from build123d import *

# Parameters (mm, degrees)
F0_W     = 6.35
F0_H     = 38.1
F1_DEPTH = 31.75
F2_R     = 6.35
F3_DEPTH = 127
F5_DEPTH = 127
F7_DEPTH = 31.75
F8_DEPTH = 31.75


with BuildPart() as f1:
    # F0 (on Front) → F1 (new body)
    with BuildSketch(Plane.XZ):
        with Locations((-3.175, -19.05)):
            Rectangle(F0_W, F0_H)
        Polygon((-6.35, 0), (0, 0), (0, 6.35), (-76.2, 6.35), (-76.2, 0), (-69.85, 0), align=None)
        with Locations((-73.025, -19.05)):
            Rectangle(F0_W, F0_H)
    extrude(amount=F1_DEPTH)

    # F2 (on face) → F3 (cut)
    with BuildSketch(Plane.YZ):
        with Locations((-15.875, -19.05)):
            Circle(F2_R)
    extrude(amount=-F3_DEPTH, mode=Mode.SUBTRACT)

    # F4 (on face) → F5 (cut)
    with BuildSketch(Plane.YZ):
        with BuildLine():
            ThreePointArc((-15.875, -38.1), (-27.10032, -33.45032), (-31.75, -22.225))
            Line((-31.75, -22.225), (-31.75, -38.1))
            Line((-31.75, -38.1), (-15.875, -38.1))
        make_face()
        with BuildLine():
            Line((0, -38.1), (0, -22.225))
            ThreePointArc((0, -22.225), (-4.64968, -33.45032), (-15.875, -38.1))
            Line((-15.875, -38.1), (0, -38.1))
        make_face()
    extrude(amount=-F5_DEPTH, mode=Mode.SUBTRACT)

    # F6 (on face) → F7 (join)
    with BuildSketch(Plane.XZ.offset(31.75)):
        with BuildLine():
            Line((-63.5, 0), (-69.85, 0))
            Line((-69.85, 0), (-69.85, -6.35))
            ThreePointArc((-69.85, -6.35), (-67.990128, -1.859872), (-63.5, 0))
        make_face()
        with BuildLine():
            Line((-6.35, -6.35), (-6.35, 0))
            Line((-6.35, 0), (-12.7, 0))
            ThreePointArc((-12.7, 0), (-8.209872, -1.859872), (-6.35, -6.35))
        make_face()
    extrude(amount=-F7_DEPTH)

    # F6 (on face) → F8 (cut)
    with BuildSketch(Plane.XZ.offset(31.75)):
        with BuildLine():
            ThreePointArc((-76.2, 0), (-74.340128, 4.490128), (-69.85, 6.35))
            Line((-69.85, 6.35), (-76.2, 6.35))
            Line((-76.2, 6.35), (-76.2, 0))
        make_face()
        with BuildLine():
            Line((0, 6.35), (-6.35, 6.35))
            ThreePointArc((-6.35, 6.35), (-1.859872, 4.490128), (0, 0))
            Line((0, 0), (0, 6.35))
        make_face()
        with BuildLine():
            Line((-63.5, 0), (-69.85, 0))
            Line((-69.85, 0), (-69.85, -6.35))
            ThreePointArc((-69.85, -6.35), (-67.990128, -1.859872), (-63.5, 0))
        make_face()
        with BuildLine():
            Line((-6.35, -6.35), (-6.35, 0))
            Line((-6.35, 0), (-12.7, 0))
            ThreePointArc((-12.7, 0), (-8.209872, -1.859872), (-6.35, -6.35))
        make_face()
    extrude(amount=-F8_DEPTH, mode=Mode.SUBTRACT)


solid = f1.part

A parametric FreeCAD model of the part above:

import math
import FreeCAD as App
import Part
import Sketcher
from FreeCAD import Vector
Q = App.Units.Quantity


def add_polygon(sketch, points):
    """Adds a closed chain of lines whose ends are joined by coincident constraints."""
    first, n = sketch.GeometryCount, len(points)
    for a, b in zip(points, points[1:] + points[:1]):
        sketch.addGeometry(Part.LineSegment(App.Vector(*a, 0), App.Vector(*b, 0)), False)
    for i in range(n):
        sketch.addConstraint(Sketcher.Constraint("Coincident", first + i, 2, first + (i + 1) % n, 1))

doc = App.newDocument("Part")
body = doc.addObject("PartDesign::Body", "Body")

sketch1 = body.newObject("Sketcher::SketchObject", "Sketch")
sketch1.AttachmentSupport = (doc.getObject("XZ_Plane"), [""])
sketch1.MapMode = "FlatFace"
add_polygon(sketch1, [(-6, 0), (-6, -38), (0, -38), (0, 6), (-76, 6), (-76, -38), (-70, -38), (-70, 0)])
sketch1.addConstraint([
    Sketcher.Constraint("Vertical", 0),
    Sketcher.Constraint("Horizontal", 1),
    Sketcher.Constraint("Vertical", 2),
    Sketcher.Constraint("Horizontal", 3),
    Sketcher.Constraint("Vertical", 4),
    Sketcher.Constraint("Horizontal", 5),
    Sketcher.Constraint("Vertical", 6),
    Sketcher.Constraint("Horizontal", 7),
    Sketcher.Constraint("PointOnObject", 1, 2, -2),
    Sketcher.Constraint("PointOnObject", 6, 2, -1),
    Sketcher.Constraint("Horizontal", 1, 2, 4, 2),
    Sketcher.Constraint("Equal", 1, 5),
    Sketcher.Constraint("DistanceX", 3, 2, 3, 1, Q("3 in")),
    Sketcher.Constraint("DistanceX", 7, 1, 7, 2, Q("2.5 in")),
    Sketcher.Constraint("DistanceY", 0, 2, 0, 1, Q("1.5 in")),
    Sketcher.Constraint("DistanceY", 2, 1, 2, 2, Q("1.75 in")),
])
pad1 = body.newObject("PartDesign::Pad", "Pad")
pad1.Profile = sketch1
pad1.Length = Q("1.25 in")

sketch2 = body.newObject("Sketcher::SketchObject", "Sketch001")
sketch2.AttachmentSupport = (doc.getObject("YZ_Plane"), [""])
sketch2.MapMode = "FlatFace"
sketch2.addGeometry(Part.Circle(Vector(-16, -19, 0), Vector(0, 0, 1), 6), False)
sketch2.addConstraint([
    Sketcher.Constraint("Diameter", 0, Q("0.5 in")),
    Sketcher.Constraint("DistanceY", 0, 3, -1, 1, Q("0.75 in")),
    Sketcher.Constraint("DistanceX", 0, 3, -1, 1, Q("0.625 in")),
])
pocket1 = body.newObject("PartDesign::Pocket", "Pocket")
pocket1.Profile = sketch2
pocket1.Length = Q("5 in")

sketch3 = body.newObject("Sketcher::SketchObject", "Sketch002")
sketch3.AttachmentSupport = (doc.getObject("YZ_Plane"), [""])
sketch3.MapMode = "FlatFace"
sketch3.addGeometry([
    Part.ArcOfCircle(Part.Circle(Vector(-16, -22, 0), Vector(0, 0, 1), 16), math.radians(-180), math.radians(-90)),
    Part.LineSegment(Vector(-32, -22, 0), Vector(-32, -38, 0)),
    Part.LineSegment(Vector(-32, -38, 0), Vector(-16, -38, 0)),
    Part.LineSegment(Vector(0, -38, 0), Vector(0, -22, 0)),
    Part.ArcOfCircle(Part.Circle(Vector(-16, -22, 0), Vector(0, 0, 1), 16), math.radians(-90), math.radians(0)),
    Part.LineSegment(Vector(-16, -38, 0), Vector(0, -38, 0)),
], False)
sketch3.addConstraint([
    Sketcher.Constraint("Tangent", 0, 1, 1, 1),
    Sketcher.Constraint("Coincident", 1, 2, 2, 1),
    Sketcher.Constraint("Tangent", 2, 2, 0, 2),
    Sketcher.Constraint("Tangent", 3, 2, 4, 2),
    Sketcher.Constraint("Tangent", 4, 1, 5, 1),
    Sketcher.Constraint("Coincident", 5, 2, 3, 1),
    Sketcher.Constraint("Vertical", 1),
    Sketcher.Constraint("Horizontal", 2),
    Sketcher.Constraint("Vertical", 3),
    Sketcher.Constraint("Horizontal", 5),
    Sketcher.Constraint("Coincident", 4, 3, 0, 3),
    Sketcher.Constraint("Equal", 0, 4),
    Sketcher.Constraint("PointOnObject", 3, 2, -2),
    Sketcher.Constraint("Radius", 0, Q("0.625 in")),
    Sketcher.Constraint("DistanceY", 1, 2, -1, 1, Q("1.5 in")),
])
pocket2 = body.newObject("PartDesign::Pocket", "Pocket001")
pocket2.Profile = sketch3
pocket2.Length = Q("5 in")

sketch4 = body.newObject("Sketcher::SketchObject", "Sketch003")
sketch4.AttachmentSupport = (doc.getObject("XZ_Plane"), [""])
sketch4.MapMode = "FlatFace"
sketch4.AttachmentOffset = App.Placement(Vector(0, 0, 1.25 * 25.4), App.Rotation())
sketch4.addGeometry([
    Part.LineSegment(Vector(-64, 0, 0), Vector(-70, 0, 0)),
    Part.LineSegment(Vector(-70, 0, 0), Vector(-70, -6, 0)),
    Part.ArcOfCircle(Part.Circle(Vector(-63, -6, 0), Vector(0, 0, 1), 6), math.radians(90), math.radians(180)),
    Part.LineSegment(Vector(-6, -6, 0), Vector(-6, 0, 0)),
    Part.LineSegment(Vector(-6, 0, 0), Vector(-13, 0, 0)),
    Part.ArcOfCircle(Part.Circle(Vector(-13, -6, 0), Vector(0, 0, 1), 6), math.radians(0), math.radians(90)),
], False)
sketch4.addConstraint([
    Sketcher.Constraint("Coincident", 0, 2, 1, 1),
    Sketcher.Constraint("Tangent", 1, 2, 2, 2),
    Sketcher.Constraint("Tangent", 2, 1, 0, 1),
    Sketcher.Constraint("Coincident", 3, 2, 4, 1),
    Sketcher.Constraint("Tangent", 4, 2, 5, 2),
    Sketcher.Constraint("Tangent", 5, 1, 3, 1),
    Sketcher.Constraint("Horizontal", 0),
    Sketcher.Constraint("Vertical", 1),
    Sketcher.Constraint("Vertical", 3),
    Sketcher.Constraint("Horizontal", 4),
    Sketcher.Constraint("Equal", 2, 5),
    Sketcher.Constraint("PointOnObject", 0, 2, -1),
    Sketcher.Constraint("PointOnObject", 3, 2, -1),
    Sketcher.Constraint("Radius", 2, Q("0.25 in")),
    Sketcher.Constraint("DistanceX", 2, 3, 5, 3, Q("2 in")),
    Sketcher.Constraint("DistanceX", 2, 3, -1, 1, Q("2.5 in")),
])
pad2 = body.newObject("PartDesign::Pad", "Pad001")
pad2.Profile = sketch4
pad2.Length = Q("1.25 in")
pad2.Reversed = True

sketch5 = body.newObject("Sketcher::SketchObject", "Sketch004")
sketch5.AttachmentSupport = (doc.getObject("XZ_Plane"), [""])
sketch5.MapMode = "FlatFace"
sketch5.AttachmentOffset = App.Placement(Vector(0, 0, 1.25 * 25.4), App.Rotation())
sketch5.addGeometry([
    Part.ArcOfCircle(Part.Circle(Vector(-70, 0, 0), Vector(0, 0, 1), 6), math.radians(90), math.radians(180)),
    Part.LineSegment(Vector(-70, 6, 0), Vector(-76, 6, 0)),
    Part.LineSegment(Vector(-76, 6, 0), Vector(-76, 0, 0)),
    Part.LineSegment(Vector(0, 6, 0), Vector(-6, 6, 0)),
    Part.ArcOfCircle(Part.Circle(Vector(-6, 0, 0), Vector(0, 0, 1), 6), math.radians(0), math.radians(90)),
    Part.LineSegment(Vector(0, 0, 0), Vector(0, 6, 0)),
    Part.LineSegment(Vector(-64, 0, 0), Vector(-70, 0, 0)),
    Part.LineSegment(Vector(-70, 0, 0), Vector(-70, -6, 0)),
    Part.ArcOfCircle(Part.Circle(Vector(-63, -6, 0), Vector(0, 0, 1), 6), math.radians(90), math.radians(180)),
    Part.LineSegment(Vector(-6, -6, 0), Vector(-6, 0, 0)),
    Part.LineSegment(Vector(-6, 0, 0), Vector(-13, 0, 0)),
    Part.ArcOfCircle(Part.Circle(Vector(-13, -6, 0), Vector(0, 0, 1), 6), math.radians(0), math.radians(90)),
], False)
sketch5.addConstraint([
    Sketcher.Constraint("Tangent", 0, 1, 1, 1),
    Sketcher.Constraint("Coincident", 1, 2, 2, 1),
    Sketcher.Constraint("Tangent", 2, 2, 0, 2),
    Sketcher.Constraint("Tangent", 3, 2, 4, 2),
    Sketcher.Constraint("Tangent", 4, 1, 5, 1),
    Sketcher.Constraint("Coincident", 5, 2, 3, 1),
    Sketcher.Constraint("Coincident", 6, 2, 7, 1),
    Sketcher.Constraint("Tangent", 7, 2, 8, 2),
    Sketcher.Constraint("Tangent", 8, 1, 6, 1),
    Sketcher.Constraint("Coincident", 9, 2, 10, 1),
    Sketcher.Constraint("Tangent", 10, 2, 11, 2),
    Sketcher.Constraint("Tangent", 11, 1, 9, 1),
    Sketcher.Constraint("Horizontal", 1),
    Sketcher.Constraint("Vertical", 2),
    Sketcher.Constraint("Horizontal", 3),
    Sketcher.Constraint("Vertical", 5),
    Sketcher.Constraint("Horizontal", 6),
    Sketcher.Constraint("Vertical", 7),
    Sketcher.Constraint("Vertical", 9),
    Sketcher.Constraint("Horizontal", 10),
    Sketcher.Constraint("Coincident", 4, 1, -1, 1),
    Sketcher.Constraint("Coincident", 6, 2, 0, 3),
    Sketcher.Constraint("Coincident", 9, 2, 4, 3),
    Sketcher.Constraint("Equal", 0, 4),
    Sketcher.Constraint("Equal", 4, 8),
    Sketcher.Constraint("Equal", 8, 11),
    Sketcher.Constraint("PointOnObject", 0, 3, -1),
    Sketcher.Constraint("Radius", 0, Q("0.25 in")),
    Sketcher.Constraint("DistanceX", 1, 2, -1, 1, Q("3 in")),
])
pocket3 = body.newObject("PartDesign::Pocket", "Pocket002")
pocket3.Profile = sketch5
pocket3.Length = Q("1.25 in")

doc.recompute()
